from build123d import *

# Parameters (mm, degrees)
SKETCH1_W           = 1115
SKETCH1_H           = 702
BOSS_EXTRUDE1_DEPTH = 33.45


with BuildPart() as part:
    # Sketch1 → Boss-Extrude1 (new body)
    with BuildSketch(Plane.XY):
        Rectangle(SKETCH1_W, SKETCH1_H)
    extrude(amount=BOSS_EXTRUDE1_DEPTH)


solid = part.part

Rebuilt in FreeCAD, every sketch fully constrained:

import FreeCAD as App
import Part
import Sketcher

V = App.Vector
Q = App.Units.Quantity


def add_polygon(sketch, points):
    """Adds a closed chain of lines whose ends are joined by coincident constraints."""
    first, n = sketch.GeometryCount, len(points)
    for a, b in zip(points, points[1:] + points[:1]):
        sketch.addGeometry(Part.LineSegment(App.Vector(*a, 0), App.Vector(*b, 0)), False)
    for i in range(n):
        sketch.addConstraint(Sketcher.Constraint("Coincident", first + i, 2, first + (i + 1) % n, 1))

doc = App.newDocument("Part")
params = doc.addObject("Spreadsheet::Sheet", "Params")
for row, (alias, value) in enumerate([
    ("sketch1_width", "1115 mm"),
    ("sketch1_height", "702 mm"),
    ("pad1_length", "33.45 mm"),
], start=1):
    params.set(f"A{row}", alias)
    params.set(f"B{row}", "=" + value)
    params.setAlias(f"B{row}", alias)

body = doc.addObject("PartDesign::Body", "Body")

# Sketch on XY plane
sketch1 = body.newObject("Sketcher::SketchObject", "Sketch")
sketch1.AttachmentSupport = (doc.getObject("XY_Plane"), [""])
sketch1.MapMode = "FlatFace"
add_polygon(sketch1, [(-557.5, 351), (-557.5, -351), (557.5, -351), (557.5, 351)])  # lines 0-3
sketch1.addConstraint(Sketcher.Constraint("Vertical", 0))
sketch1.addConstraint(Sketcher.Constraint("Horizontal", 1))
sketch1.addConstraint(Sketcher.Constraint("Vertical", 2))
sketch1.addConstraint(Sketcher.Constraint("Horizontal", 3))
sketch1.addConstraint(Sketcher.Constraint("Symmetric", 0, 2, 2, 2, -1, 1))
sketch1.addConstraint(Sketcher.Constraint("DistanceX", 1, 1, 1, 2, Q("1115 mm")))
sketch1.addConstraint(Sketcher.Constraint("DistanceY", 0, 2, 0, 1, Q("702 mm")))
sketch1.setExpression("Constraints[9]", "Params.sketch1_width")
sketch1.setExpression("Constraints[10]", "Params.sketch1_height")
pad1 = body.newObject("PartDesign::Pad", "Pad")
pad1.Profile = sketch1
pad1.setExpression("Length", "Params.pad1_length")

doc.recompute()
